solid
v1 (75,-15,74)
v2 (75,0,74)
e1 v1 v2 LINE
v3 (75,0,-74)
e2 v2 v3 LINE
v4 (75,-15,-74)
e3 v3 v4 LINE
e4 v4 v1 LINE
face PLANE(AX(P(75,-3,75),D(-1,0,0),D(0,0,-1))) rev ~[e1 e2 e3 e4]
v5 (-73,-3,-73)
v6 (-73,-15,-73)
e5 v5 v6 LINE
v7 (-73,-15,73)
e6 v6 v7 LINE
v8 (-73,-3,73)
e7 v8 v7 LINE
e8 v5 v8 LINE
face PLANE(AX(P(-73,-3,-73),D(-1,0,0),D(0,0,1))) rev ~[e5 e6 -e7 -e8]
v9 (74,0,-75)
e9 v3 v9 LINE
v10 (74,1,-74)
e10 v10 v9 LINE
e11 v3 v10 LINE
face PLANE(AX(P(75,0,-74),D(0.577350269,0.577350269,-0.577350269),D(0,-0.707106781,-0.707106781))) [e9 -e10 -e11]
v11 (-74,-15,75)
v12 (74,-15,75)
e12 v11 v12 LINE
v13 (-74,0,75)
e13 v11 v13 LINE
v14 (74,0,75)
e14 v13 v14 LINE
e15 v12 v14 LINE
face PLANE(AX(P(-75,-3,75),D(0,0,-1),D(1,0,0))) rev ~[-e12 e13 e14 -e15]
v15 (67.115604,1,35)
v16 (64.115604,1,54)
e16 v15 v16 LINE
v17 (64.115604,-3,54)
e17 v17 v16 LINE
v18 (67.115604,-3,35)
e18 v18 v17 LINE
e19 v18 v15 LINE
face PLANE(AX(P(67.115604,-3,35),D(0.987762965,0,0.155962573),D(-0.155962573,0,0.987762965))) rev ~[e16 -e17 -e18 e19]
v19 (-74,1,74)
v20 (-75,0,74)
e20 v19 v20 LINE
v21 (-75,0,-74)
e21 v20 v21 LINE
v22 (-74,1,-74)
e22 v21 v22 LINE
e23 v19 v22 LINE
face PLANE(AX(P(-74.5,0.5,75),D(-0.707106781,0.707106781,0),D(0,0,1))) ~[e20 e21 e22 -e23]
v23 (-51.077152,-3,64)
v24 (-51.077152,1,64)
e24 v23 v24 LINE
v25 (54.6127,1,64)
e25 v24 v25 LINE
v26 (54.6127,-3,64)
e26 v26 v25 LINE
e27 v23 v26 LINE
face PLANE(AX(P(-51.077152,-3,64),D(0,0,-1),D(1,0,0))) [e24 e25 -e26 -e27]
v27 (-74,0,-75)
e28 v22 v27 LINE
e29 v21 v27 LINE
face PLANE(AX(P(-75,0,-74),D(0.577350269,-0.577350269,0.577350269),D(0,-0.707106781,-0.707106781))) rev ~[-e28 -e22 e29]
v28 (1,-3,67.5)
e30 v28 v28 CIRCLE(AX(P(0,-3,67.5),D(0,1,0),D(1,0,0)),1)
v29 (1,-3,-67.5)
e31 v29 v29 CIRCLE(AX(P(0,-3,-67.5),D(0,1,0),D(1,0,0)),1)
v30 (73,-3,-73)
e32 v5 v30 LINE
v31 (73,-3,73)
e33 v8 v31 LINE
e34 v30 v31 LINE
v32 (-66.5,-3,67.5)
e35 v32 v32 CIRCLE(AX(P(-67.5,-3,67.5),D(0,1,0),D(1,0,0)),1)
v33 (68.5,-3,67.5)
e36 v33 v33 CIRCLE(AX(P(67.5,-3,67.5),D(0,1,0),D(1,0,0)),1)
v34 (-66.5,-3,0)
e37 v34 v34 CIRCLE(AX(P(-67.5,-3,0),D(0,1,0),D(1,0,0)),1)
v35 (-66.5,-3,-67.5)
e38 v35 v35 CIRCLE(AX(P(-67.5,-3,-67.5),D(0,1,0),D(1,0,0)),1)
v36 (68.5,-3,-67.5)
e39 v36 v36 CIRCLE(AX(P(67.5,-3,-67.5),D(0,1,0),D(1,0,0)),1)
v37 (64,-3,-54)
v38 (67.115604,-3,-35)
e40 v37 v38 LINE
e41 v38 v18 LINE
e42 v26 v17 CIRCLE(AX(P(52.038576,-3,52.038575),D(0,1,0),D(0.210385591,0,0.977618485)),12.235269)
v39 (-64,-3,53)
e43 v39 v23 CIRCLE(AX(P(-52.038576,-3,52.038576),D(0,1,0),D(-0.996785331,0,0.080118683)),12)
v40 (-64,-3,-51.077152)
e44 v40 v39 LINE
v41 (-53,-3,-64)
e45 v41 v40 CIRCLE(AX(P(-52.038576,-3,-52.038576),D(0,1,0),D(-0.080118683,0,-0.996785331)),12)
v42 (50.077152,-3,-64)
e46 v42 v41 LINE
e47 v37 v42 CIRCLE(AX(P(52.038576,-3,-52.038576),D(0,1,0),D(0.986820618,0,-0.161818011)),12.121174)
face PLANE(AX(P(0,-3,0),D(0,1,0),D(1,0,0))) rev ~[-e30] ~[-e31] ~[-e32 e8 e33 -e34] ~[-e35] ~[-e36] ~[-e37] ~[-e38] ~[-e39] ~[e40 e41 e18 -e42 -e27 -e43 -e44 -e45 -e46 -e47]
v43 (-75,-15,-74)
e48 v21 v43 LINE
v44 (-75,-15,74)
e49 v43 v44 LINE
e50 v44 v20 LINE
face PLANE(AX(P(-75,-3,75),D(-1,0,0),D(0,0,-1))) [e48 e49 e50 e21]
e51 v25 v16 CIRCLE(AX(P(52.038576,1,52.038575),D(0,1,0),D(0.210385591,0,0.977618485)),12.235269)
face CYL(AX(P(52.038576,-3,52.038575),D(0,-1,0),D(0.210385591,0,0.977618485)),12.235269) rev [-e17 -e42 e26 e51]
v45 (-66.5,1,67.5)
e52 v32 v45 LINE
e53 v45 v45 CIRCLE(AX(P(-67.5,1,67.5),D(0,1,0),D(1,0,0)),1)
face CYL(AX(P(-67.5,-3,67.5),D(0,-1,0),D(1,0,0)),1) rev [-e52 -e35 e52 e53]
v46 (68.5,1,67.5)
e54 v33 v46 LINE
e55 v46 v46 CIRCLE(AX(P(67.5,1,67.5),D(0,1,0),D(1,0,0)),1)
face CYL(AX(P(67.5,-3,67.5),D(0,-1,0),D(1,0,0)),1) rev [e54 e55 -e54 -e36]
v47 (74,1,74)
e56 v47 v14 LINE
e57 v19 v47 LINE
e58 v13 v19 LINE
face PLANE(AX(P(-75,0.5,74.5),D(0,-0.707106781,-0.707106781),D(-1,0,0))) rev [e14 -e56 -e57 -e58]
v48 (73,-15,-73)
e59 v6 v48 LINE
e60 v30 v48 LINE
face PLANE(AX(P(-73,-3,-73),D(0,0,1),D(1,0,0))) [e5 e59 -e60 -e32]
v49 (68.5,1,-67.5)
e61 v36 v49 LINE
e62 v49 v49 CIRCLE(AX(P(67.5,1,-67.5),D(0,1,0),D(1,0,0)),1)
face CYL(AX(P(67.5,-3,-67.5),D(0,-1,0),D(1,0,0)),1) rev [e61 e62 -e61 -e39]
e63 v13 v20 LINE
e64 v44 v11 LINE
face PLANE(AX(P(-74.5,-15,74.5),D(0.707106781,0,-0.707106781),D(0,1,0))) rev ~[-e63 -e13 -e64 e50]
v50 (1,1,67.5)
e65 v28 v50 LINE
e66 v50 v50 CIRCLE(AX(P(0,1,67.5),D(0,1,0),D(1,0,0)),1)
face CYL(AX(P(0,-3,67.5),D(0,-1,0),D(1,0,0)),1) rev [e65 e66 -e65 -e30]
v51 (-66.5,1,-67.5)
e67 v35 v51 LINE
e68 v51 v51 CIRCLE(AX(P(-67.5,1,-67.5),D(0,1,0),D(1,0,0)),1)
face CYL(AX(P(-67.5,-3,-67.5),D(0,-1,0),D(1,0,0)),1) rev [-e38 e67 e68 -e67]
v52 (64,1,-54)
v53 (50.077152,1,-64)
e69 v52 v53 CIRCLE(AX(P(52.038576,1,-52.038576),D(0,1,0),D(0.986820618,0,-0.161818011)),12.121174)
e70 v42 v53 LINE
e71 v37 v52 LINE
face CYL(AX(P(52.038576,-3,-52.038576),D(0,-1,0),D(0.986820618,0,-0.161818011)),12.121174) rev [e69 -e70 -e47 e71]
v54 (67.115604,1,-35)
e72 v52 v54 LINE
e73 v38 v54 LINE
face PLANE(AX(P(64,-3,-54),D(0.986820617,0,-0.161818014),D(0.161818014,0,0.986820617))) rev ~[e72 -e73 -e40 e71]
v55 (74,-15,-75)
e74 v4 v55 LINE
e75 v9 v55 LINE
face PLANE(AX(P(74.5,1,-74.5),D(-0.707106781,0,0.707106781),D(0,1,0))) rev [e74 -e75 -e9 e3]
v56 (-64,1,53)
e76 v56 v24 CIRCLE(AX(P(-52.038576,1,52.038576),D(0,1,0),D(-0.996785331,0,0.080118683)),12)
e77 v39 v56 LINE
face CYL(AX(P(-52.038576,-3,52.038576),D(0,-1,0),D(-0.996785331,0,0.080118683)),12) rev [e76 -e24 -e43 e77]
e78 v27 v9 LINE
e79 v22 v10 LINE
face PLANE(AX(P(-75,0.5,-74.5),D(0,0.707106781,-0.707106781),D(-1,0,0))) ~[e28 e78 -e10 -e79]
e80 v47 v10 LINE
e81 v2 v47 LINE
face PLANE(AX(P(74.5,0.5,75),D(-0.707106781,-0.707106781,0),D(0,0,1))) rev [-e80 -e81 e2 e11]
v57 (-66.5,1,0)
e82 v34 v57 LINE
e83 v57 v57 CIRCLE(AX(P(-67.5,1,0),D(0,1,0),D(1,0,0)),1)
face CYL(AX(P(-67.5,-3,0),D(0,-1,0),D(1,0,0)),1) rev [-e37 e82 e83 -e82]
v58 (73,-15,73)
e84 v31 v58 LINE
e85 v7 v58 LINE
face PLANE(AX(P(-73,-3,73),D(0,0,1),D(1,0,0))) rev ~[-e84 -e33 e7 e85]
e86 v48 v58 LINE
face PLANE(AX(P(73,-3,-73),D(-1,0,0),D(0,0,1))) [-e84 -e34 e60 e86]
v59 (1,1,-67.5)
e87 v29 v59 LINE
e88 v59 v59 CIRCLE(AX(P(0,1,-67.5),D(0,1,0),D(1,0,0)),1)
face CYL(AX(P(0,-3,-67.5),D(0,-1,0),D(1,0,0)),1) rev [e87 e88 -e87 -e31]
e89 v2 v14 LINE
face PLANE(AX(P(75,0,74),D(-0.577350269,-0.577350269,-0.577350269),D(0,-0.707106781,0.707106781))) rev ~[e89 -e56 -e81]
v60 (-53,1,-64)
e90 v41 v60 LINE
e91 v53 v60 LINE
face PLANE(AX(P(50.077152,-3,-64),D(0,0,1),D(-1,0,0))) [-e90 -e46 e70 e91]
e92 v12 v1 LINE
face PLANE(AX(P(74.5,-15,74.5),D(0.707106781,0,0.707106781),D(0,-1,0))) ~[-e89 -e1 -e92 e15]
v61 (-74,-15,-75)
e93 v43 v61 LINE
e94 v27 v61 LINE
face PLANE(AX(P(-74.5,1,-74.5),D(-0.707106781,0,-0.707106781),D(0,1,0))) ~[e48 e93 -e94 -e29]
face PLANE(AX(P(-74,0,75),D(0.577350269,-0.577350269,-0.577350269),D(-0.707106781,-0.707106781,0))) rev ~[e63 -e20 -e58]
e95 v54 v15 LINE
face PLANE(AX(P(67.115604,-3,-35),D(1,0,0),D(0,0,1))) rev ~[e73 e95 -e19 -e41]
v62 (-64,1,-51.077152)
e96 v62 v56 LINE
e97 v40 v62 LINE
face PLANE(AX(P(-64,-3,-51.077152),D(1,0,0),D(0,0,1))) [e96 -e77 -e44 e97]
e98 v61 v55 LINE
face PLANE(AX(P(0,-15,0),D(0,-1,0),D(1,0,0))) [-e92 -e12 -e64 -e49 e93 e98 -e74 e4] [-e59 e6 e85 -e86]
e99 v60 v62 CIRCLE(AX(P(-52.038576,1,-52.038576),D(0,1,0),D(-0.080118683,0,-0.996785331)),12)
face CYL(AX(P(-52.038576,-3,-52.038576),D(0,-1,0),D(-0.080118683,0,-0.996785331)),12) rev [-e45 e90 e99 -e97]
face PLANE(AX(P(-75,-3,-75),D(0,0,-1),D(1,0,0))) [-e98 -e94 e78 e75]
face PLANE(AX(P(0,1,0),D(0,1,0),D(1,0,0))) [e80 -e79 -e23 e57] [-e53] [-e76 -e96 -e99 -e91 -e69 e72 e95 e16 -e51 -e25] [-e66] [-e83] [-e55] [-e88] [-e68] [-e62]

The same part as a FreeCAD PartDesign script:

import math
import FreeCAD as App
import Part
import Sketcher

V = App.Vector
Q = App.Units.Quantity


def edges_at(feature, points):
    """Names of the edges that pass closest to the given points."""
    edges = feature.Shape.Edges
    near = lambda p: min(range(len(edges)), key=lambda i: edges[i].distToShape(Part.Vertex(*p))[0])
    return sorted({f"Edge{near(p) + 1}" for p in points})


def add_polygon(sketch, points):
    """Adds a closed chain of lines whose ends are joined by coincident constraints."""
    first, n = sketch.GeometryCount, len(points)
    for a, b in zip(points, points[1:] + points[:1]):
        sketch.addGeometry(Part.LineSegment(App.Vector(*a, 0), App.Vector(*b, 0)), False)
    for i in range(n):
        sketch.addConstraint(Sketcher.Constraint("Coincident", first + i, 2, first + (i + 1) % n, 1))

doc = App.newDocument("Part")
body = doc.addObject("PartDesign::Body", "Body")

# Sketch on XZ plane
sketch1 = body.newObject("Sketcher::SketchObject", "Sketch")
sketch1.AttachmentSupport = (doc.getObject("XZ_Plane"), [""])
sketch1.MapMode = "FlatFace"
add_polygon(sketch1, [(-75, 75), (-75, -75), (75, -75), (75, 75)])  # lines 0-3
add_polygon(sketch1, [(73, -73), (-73, -73), (-73, 73), (73, 73)])  # lines 4-7
sketch1.addConstraint(Sketcher.Constraint("Vertical", 0))
sketch1.addConstraint(Sketcher.Constraint("Horizontal", 1))
sketch1.addConstraint(Sketcher.Constraint("Vertical", 2))
sketch1.addConstraint(Sketcher.Constraint("Horizontal", 3))
sketch1.addConstraint(Sketcher.Constraint("Horizontal", 4))
sketch1.addConstraint(Sketcher.Constraint("Vertical", 5))
sketch1.addConstraint(Sketcher.Constraint("Horizontal", 6))
sketch1.addConstraint(Sketcher.Constraint("Vertical", 7))
sketch1.addConstraint(Sketcher.Constraint("Symmetric", 0, 2, 2, 2, -1, 1))
sketch1.addConstraint(Sketcher.Constraint("Symmetric", 4, 2, 6, 2, -1, 1))
sketch1.addConstraint(Sketcher.Constraint("Equal", 3, 0))
sketch1.addConstraint(Sketcher.Constraint("Equal", 6, 5))
sketch1.addConstraint(Sketcher.Constraint("DistanceX", 1, 1, 1, 2, Q("150 mm")))
sketch1.addConstraint(Sketcher.Constraint("DistanceX", 4, 2, 4, 1, Q("146 mm")))
pad1 = body.newObject("PartDesign::Pad", "Pad")
pad1.Profile = sketch1
pad1.Length = 12

# Sketch on XZ plane
sketch2 = body.newObject("Sketcher::SketchObject", "Sketch001")
sketch2.AttachmentSupport = (doc.getObject("XZ_Plane"), [""])
sketch2.MapMode = "FlatFace"
add_polygon(sketch2, [(-75, -75), (-75, 75), (75, 75), (75, -75)])  # lines 0-3
sketch2.addGeometry(Part.Circle(V(-67.5, 67.5, 0), V(0, 0, 1), 1), False)  # 4
sketch2.addGeometry(Part.Circle(V(0, 67.5, 0), V(0, 0, 1), 1), False)  # 5
sketch2.addGeometry(Part.Circle(V(67.5, 67.5, 0), V(0, 0, 1), 1), False)  # 6
sketch2.addGeometry(Part.Circle(V(-67.5, 0, 0), V(0, 0, 1), 1), False)  # 7
sketch2.addGeometry(Part.Circle(V(-67.5, -67.5, 0), V(0, 0, 1), 1), False)  # 8
sketch2.addGeometry(Part.ArcOfCircle(Part.Circle(V(-52, -52, 0), V(0, 0, 1), 12), math.radians(175), math.radians(265)), False)  # 9
sketch2.addGeometry(Part.LineSegment(V(-53, -64, 0), V(50.1, -64, 0)), False)  # 10
sketch2.addGeometry(Part.ArcOfCircle(Part.Circle(V(52, -52, 0), V(0, 0, 1), 12.1), math.radians(-99), math.radians(-9)), False)  # 11
sketch2.addGeometry(Part.LineSegment(V(64, -54, 0), V(67.1, -35, 0)), False)  # 12
sketch2.addGeometry(Part.LineSegment(V(67.1, -35, 0), V(67.1, 35, 0)), False)  # 13
sketch2.addGeometry(Part.LineSegment(V(67.1, 35, 0), V(64.1, 54, 0)), False)  # 14
sketch2.addGeometry(Part.ArcOfCircle(Part.Circle(V(52, 52, 0), V(0, 0, 1), 12.2), math.radians(9), math.radians(78)), False)  # 15
sketch2.addGeometry(Part.LineSegment(V(54.6, 64, 0), V(-51.1, 64, 0)), False)  # 16
sketch2.addGeometry(Part.ArcOfCircle(Part.Circle(V(-52, 52, 0), V(0, 0, 1), 12), math.radians(85), math.radians(175)), False)  # 17
sketch2.addGeometry(Part.LineSegment(V(-64, 53, 0), V(-64, -51.1, 0)), False)  # 18
sketch2.addGeometry(Part.Circle(V(0, -67.5, 0), V(0, 0, 1), 1), False)  # 19
sketch2.addGeometry(Part.Circle(V(67.5, -67.5, 0), V(0, 0, 1), 1), False)  # 20
sketch2.addConstraint(Sketcher.Constraint("Coincident", 9, 2, 10, 1))
sketch2.addConstraint(Sketcher.Constraint("Coincident", 10, 2, 11, 1))
sketch2.addConstraint(Sketcher.Constraint("Tangent", 11, 2, 12, 1))
sketch2.addConstraint(Sketcher.Constraint("Coincident", 12, 2, 13, 1))
sketch2.addConstraint(Sketcher.Constraint("Coincident", 13, 2, 14, 1))
sketch2.addConstraint(Sketcher.Constraint("Coincident", 14, 2, 15, 1))
sketch2.addConstraint(Sketcher.Constraint("Coincident", 15, 2, 16, 1))
sketch2.addConstraint(Sketcher.Constraint("Coincident", 16, 2, 17, 1))
sketch2.addConstraint(Sketcher.Constraint("Coincident", 17, 2, 18, 1))
sketch2.addConstraint(Sketcher.Constraint("Coincident", 18, 2, 9, 1))
sketch2.addConstraint(Sketcher.Constraint("Vertical", 0))
sketch2.addConstraint(Sketcher.Constraint("Horizontal", 1))
sketch2.addConstraint(Sketcher.Constraint("Vertical", 2))
sketch2.addConstraint(Sketcher.Constraint("Horizontal", 3))
sketch2.addConstraint(Sketcher.Constraint("Horizontal", 10))
sketch2.addConstraint(Sketcher.Constraint("Vertical", 13))
sketch2.addConstraint(Sketcher.Constraint("Horizontal", 16))
sketch2.addConstraint(Sketcher.Constraint("Vertical", 18))
sketch2.addConstraint(Sketcher.Constraint("Equal", 4, 5))
sketch2.addConstraint(Sketcher.Constraint("Equal", 5, 6))
sketch2.addConstraint(Sketcher.Constraint("Equal", 6, 7))
sketch2.addConstraint(Sketcher.Constraint("Equal", 7, 8))
sketch2.addConstraint(Sketcher.Constraint("Equal", 9, 17))
sketch2.addConstraint(Sketcher.Constraint("Equal", 8, 19))
sketch2.addConstraint(Sketcher.Constraint("Equal", 19, 20))
sketch2.addConstraint(Sketcher.Constraint("Symmetric", 6, 3, 8, 3, -1, 1))
sketch2.addConstraint(Sketcher.Constraint("Symmetric", 9, 3, 15, 3, -1, 1))
sketch2.addConstraint(Sketcher.Constraint("Symmetric", 11, 3, 17, 3, -1, 1))
sketch2.addConstraint(Sketcher.Constraint("Symmetric", 5, 3, 19, 3, -1, 1))
sketch2.addConstraint(Sketcher.Constraint("Symmetric", 4, 3, 20, 3, -1, 1))
sketch2.addConstraint(Sketcher.Constraint("Symmetric", 0, 2, 2, 2, -1, 1))
sketch2.addConstraint(Sketcher.Constraint("Symmetric", 4, 3, 6, 3, -2))
sketch2.addConstraint(Sketcher.Constraint("Symmetric", 9, 3, 11, 3, -2))
sketch2.addConstraint(Sketcher.Constraint("PointOnObject", 5, 3, -2))
sketch2.addConstraint(Sketcher.Constraint("PointOnObject", 7, 3, -1))
sketch2.addConstraint(Sketcher.Constraint("Horizontal", 4, 3, 5, 3))
sketch2.addConstraint(Sketcher.Constraint("Vertical", 4, 3, 7, 3))
sketch2.addConstraint(Sketcher.Constraint("Equal", 3, 0))
sketch2.addConstraint(Sketcher.Constraint("Diameter", 4, Q("2 mm")))
sketch2.addConstraint(Sketcher.Constraint("Radius", 9, Q("12 mm")))
sketch2.addConstraint(Sketcher.Constraint("DistanceX", 1, 1, 1, 2, Q("150 mm")))
sketch2.addConstraint(Sketcher.Constraint("DistanceY", 13, 1, 13, 2, Q("70 mm")))
sketch2.addConstraint(Sketcher.Constraint("DistanceX", 9, 2, -1, 1, Q("53 mm")))
sketch2.addConstraint(Sketcher.Constraint("DistanceY", 9, 2, -1, 1, Q("64 mm")))
sketch2.addConstraint(Sketcher.Constraint("DistanceX", -1, 1, 11, 2, Q("64 mm")))
sketch2.addConstraint(Sketcher.Constraint("DistanceY", 11, 2, -1, 1, Q("54 mm")))
sketch2.addConstraint(Sketcher.Constraint("DistanceY", 12, 2, -1, 1, Q("35 mm")))
sketch2.addConstraint(Sketcher.Constraint("DistanceY", -1, 1, 14, 2, Q("54 mm")))
sketch2.addConstraint(Sketcher.Constraint("DistanceY", -1, 1, 15, 2, Q("64 mm")))
sketch2.addConstraint(Sketcher.Constraint("DistanceX", 17, 2, -1, 1, Q("64 mm")))
sketch2.addConstraint(Sketcher.Constraint("DistanceY", -1, 1, 17, 2, Q("53 mm")))
sketch2.addConstraint(Sketcher.Constraint("DistanceX", 4, 3, 6, 3, Q("135 mm")))
sketch2.addConstraint(Sketcher.Constraint("DistanceY", 8, 3, 4, 3, Q("135 mm")))
sketch2.addConstraint(Sketcher.Constraint("DistanceX", 14, 2, 13, 2, Q("3 mm")))
pad2 = body.newObject("PartDesign::Pad", "Pad001")
pad2.Profile = sketch2
pad2.Length = 4
pad2.Reversed = True
doc.recompute()

chamfer = body.newObject("PartDesign::Chamfer", "Chamfer")
chamfer.Base = (pad2, edges_at(pad2, [
    (0, 4, -75),
    (-75, 4, 0),
    (0, 4, 75),
    (75, 4, 0),
    (75, -4, -75),
    (75, -4, 75),
    (-75, -4, -75),
    (-75, -4, 75),
]))
chamfer.Size = 1
body2 = doc.addObject("PartDesign::Body", "Body001")
doc.recompute()

body.Placement = App.Placement(V(0, -3, 0), App.Rotation(V(0, 0, 1), 0))
boolean = body2.newObject("PartDesign::Boolean", "Boolean")
boolean.Type = "Fuse"
boolean.addObjects([body])

doc.recompute()
